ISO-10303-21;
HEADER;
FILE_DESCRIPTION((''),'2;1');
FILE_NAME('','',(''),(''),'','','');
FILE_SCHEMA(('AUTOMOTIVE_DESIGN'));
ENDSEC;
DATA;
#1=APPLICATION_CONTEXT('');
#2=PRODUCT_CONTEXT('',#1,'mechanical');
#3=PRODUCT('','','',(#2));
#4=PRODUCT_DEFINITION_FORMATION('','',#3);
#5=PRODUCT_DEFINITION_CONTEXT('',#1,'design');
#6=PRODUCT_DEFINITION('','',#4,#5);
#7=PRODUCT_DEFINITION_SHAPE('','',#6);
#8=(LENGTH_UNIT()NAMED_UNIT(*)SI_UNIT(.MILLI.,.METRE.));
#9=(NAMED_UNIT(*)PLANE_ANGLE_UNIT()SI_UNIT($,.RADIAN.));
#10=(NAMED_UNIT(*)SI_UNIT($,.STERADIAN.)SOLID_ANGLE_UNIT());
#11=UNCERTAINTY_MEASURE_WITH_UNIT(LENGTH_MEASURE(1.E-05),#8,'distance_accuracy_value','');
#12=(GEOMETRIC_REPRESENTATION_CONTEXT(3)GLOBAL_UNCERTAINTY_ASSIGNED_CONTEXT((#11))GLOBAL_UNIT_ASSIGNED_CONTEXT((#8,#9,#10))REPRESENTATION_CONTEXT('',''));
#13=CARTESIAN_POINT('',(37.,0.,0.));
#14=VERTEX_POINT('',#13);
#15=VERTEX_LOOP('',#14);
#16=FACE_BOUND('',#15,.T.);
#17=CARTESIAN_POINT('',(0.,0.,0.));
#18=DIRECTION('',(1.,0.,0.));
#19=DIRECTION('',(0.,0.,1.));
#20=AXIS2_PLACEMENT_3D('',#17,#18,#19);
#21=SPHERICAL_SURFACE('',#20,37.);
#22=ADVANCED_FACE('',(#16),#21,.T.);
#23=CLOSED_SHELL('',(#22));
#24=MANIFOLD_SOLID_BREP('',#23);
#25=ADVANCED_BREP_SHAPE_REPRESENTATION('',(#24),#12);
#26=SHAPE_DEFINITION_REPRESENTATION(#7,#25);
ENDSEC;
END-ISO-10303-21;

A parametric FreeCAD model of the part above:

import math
import FreeCAD as App
import Part
import Sketcher
Q = App.Units.Quantity

doc = App.newDocument("Part")
body = doc.addObject("PartDesign::Body", "Body")

sketch1 = body.newObject("Sketcher::SketchObject", "Sketch")
sketch1.AttachmentSupport = (doc.getObject("XZ_Plane"), [""])
sketch1.MapMode = "FlatFace"
sketch1.addGeometry([
    Part.LineSegment(App.Vector(37, 0, 0), App.Vector(-37, 0, 0)),
    Part.ArcOfCircle(Part.Circle(App.Vector(0, 0, 0), App.Vector(0, 0, 1), 37), math.radians(0), math.radians(180)),
], False)
sketch1.addConstraint([
    Sketcher.Constraint("Coincident", 0, 1, 1, 1),
    Sketcher.Constraint("Coincident", 1, 2, 0, 2),
    Sketcher.Constraint("Horizontal", 0),
    Sketcher.Constraint("Coincident", 1, 3, -1, 1),
    Sketcher.Constraint("PointOnObject", 0, 1, -1),
    Sketcher.Constraint("Radius", 1, Q("37 mm")),
])
revolution = body.newObject("PartDesign::Revolution", "Revolution")
revolution.Profile = sketch1
revolution.ReferenceAxis = (sketch1, ["H_Axis"])
revolution.Angle = 360

doc.recompute()
